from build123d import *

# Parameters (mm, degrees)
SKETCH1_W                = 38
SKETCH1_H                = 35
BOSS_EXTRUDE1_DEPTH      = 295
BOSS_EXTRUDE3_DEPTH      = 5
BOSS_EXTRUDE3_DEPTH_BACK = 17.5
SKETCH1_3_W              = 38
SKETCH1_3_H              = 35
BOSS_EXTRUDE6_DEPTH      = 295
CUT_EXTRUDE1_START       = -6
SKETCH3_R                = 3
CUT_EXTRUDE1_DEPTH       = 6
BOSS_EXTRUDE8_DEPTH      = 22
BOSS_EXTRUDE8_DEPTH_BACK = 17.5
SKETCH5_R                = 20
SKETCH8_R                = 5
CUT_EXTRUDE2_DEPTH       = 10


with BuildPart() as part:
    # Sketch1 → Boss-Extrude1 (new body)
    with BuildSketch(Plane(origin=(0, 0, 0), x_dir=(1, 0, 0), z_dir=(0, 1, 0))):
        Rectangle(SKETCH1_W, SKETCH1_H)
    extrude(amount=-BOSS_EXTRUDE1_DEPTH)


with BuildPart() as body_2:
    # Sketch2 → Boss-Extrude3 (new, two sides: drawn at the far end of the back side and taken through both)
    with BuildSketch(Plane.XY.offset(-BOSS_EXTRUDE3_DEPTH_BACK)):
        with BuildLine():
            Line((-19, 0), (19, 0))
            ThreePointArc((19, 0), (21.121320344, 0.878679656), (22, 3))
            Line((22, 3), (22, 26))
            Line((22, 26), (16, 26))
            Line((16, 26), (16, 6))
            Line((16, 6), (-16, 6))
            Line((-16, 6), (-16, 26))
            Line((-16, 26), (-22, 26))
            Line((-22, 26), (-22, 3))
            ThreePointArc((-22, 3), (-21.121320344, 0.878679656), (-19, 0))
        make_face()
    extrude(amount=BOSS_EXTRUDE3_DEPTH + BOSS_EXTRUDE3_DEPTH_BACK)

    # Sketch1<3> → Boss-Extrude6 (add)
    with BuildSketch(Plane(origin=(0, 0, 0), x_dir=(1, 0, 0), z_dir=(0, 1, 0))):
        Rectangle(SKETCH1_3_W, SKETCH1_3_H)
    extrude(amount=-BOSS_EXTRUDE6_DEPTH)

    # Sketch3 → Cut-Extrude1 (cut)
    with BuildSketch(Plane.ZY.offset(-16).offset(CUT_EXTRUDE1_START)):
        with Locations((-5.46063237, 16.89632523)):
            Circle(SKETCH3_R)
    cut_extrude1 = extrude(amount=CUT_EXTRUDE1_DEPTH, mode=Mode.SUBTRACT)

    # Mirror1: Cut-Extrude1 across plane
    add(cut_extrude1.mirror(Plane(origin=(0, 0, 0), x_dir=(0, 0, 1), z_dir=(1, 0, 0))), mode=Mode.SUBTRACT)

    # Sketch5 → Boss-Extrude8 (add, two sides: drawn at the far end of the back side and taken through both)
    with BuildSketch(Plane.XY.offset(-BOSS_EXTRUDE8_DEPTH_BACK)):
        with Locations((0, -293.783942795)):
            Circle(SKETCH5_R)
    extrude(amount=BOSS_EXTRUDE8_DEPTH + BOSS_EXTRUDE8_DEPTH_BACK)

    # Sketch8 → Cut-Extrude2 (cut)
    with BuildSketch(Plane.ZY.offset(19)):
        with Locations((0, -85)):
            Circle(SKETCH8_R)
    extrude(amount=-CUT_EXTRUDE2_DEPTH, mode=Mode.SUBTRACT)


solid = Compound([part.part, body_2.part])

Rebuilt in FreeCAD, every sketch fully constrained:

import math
import FreeCAD as App
import Part
import Sketcher

V = App.Vector
Q = App.Units.Quantity

doc = App.newDocument("Part")
body = doc.addObject("PartDesign::Body", "Body")

sketch1 = body.newObject("Sketcher::SketchObject", "Sketch")
sketch1.AttachmentSupport = (doc.getObject("XZ_Plane"), [""])
sketch1.MapMode = "FlatFace"
sketch1.addGeometry([
    Part.LineSegment(V(-19, -17.5, 0), V(-19, 17.5, 0)),
    Part.LineSegment(V(-19, 17.5, 0), V(19, 17.5, 0)),
    Part.LineSegment(V(19, 17.5, 0), V(19, -17.5, 0)),
    Part.LineSegment(V(19, -17.5, 0), V(-19, -17.5, 0)),
], False)
sketch1.addConstraint([
    Sketcher.Constraint("Coincident", 0, 2, 1, 1),
    Sketcher.Constraint("Coincident", 1, 2, 2, 1),
    Sketcher.Constraint("Coincident", 2, 2, 3, 1),
    Sketcher.Constraint("Coincident", 3, 2, 0, 1),
    Sketcher.Constraint("Vertical", 0),
    Sketcher.Constraint("Horizontal", 1),
    Sketcher.Constraint("Vertical", 2),
    Sketcher.Constraint("Horizontal", 3),
    Sketcher.Constraint("Symmetric", 0, 2, 2, 2, -1, 1),
    Sketcher.Constraint("DistanceX", 1, 1, 1, 2, Q("38 mm")),
    Sketcher.Constraint("DistanceY", 0, 1, 0, 2, Q("35 mm")),
])
pad1 = body.newObject("PartDesign::Pad", "Pad")
pad1.Profile = sketch1
pad1.Length = 295
body2 = doc.addObject("PartDesign::Body", "Body001")

sketch2 = body2.newObject("Sketcher::SketchObject", "Sketch001")
sketch2.AttachmentSupport = (doc.getObject("XY_Plane001"), [""])
sketch2.MapMode = "FlatFace"
sketch2.addGeometry([
    Part.LineSegment(V(-19, 0, 0), V(19, 0, 0)),
    Part.ArcOfCircle(Part.Circle(V(19, 3, 0), V(0, 0, 1), 3), math.radians(-90), math.radians(0)),
    Part.LineSegment(V(22, 3, 0), V(22, 26, 0)),
    Part.LineSegment(V(22, 26, 0), V(16, 26, 0)),
    Part.LineSegment(V(16, 26, 0), V(16, 6, 0)),
    Part.LineSegment(V(16, 6, 0), V(-16, 6, 0)),
    Part.LineSegment(V(-16, 6, 0), V(-16, 26, 0)),
    Part.LineSegment(V(-16, 26, 0), V(-22, 26, 0)),
    Part.LineSegment(V(-22, 26, 0), V(-22, 3, 0)),
    Part.ArcOfCircle(Part.Circle(V(-19, 3, 0), V(0, 0, 1), 3), math.radians(180), math.radians(270)),
], False)
sketch2.addConstraint([
    Sketcher.Constraint("Tangent", 0, 2, 1, 1),
    Sketcher.Constraint("Tangent", 1, 2, 2, 1),
    Sketcher.Constraint("Coincident", 2, 2, 3, 1),
    Sketcher.Constraint("Coincident", 3, 2, 4, 1),
    Sketcher.Constraint("Coincident", 4, 2, 5, 1),
    Sketcher.Constraint("Coincident", 5, 2, 6, 1),
    Sketcher.Constraint("Coincident", 6, 2, 7, 1),
    Sketcher.Constraint("Coincident", 7, 2, 8, 1),
    Sketcher.Constraint("Tangent", 8, 2, 9, 1),
    Sketcher.Constraint("Tangent", 9, 2, 0, 1),
    Sketcher.Constraint("Horizontal", 0),
    Sketcher.Constraint("Vertical", 2),
    Sketcher.Constraint("Horizontal", 3),
    Sketcher.Constraint("Vertical", 4),
    Sketcher.Constraint("Horizontal", 5),
    Sketcher.Constraint("Vertical", 6),
    Sketcher.Constraint("Horizontal", 7),
    Sketcher.Constraint("Vertical", 8),
    Sketcher.Constraint("Equal", 1, 9),
    Sketcher.Constraint("Symmetric", 0, 2, 9, 2, -1, 1),
    Sketcher.Constraint("Symmetric", 3, 2, 6, 2, -2),
    Sketcher.Constraint("Radius", 1, Q("3 mm")),
    Sketcher.Constraint("DistanceX", 0, 1, 0, 2, Q("38 mm")),
    Sketcher.Constraint("DistanceX", 3, 2, 3, 1, Q("6 mm")),
    Sketcher.Constraint("DistanceY", 2, 1, 2, 2, Q("23 mm")),
    Sketcher.Constraint("DistanceY", 4, 2, 4, 1, Q("20 mm")),
])
pad2 = body2.newObject("PartDesign::Pad", "Pad001")
pad2.Profile = sketch2
pad2.Type = "TwoLengths"
pad2.Length = 5
pad2.Length2 = 17.5

sketch3 = body2.newObject("Sketcher::SketchObject", "Sketch002")
sketch3.AttachmentSupport = (doc.getObject("XZ_Plane001"), [""])
sketch3.MapMode = "FlatFace"
sketch3.addGeometry([
    Part.LineSegment(V(-19, -17.5, 0), V(-19, 17.5, 0)),
    Part.LineSegment(V(-19, 17.5, 0), V(19, 17.5, 0)),
    Part.LineSegment(V(19, 17.5, 0), V(19, -17.5, 0)),
    Part.LineSegment(V(19, -17.5, 0), V(-19, -17.5, 0)),
], False)
sketch3.addConstraint([
    Sketcher.Constraint("Coincident", 0, 2, 1, 1),
    Sketcher.Constraint("Coincident", 1, 2, 2, 1),
    Sketcher.Constraint("Coincident", 2, 2, 3, 1),
    Sketcher.Constraint("Coincident", 3, 2, 0, 1),
    Sketcher.Constraint("Vertical", 0),
    Sketcher.Constraint("Horizontal", 1),
    Sketcher.Constraint("Vertical", 2),
    Sketcher.Constraint("Horizontal", 3),
    Sketcher.Constraint("Symmetric", 0, 2, 2, 2, -1, 1),
    Sketcher.Constraint("DistanceX", 1, 1, 1, 2, Q("38 mm")),
    Sketcher.Constraint("DistanceY", 0, 1, 0, 2, Q("35 mm")),
])
pad3 = body2.newObject("PartDesign::Pad", "Pad002")
pad3.Profile = sketch3
pad3.Length = 295

sketch4 = body2.newObject("Sketcher::SketchObject", "Sketch003")
sketch4.AttachmentSupport = (doc.getObject("YZ_Plane001"), [""])
sketch4.MapMode = "FlatFace"
sketch4.AttachmentOffset = App.Placement(V(0, 0, 22), App.Rotation())
sketch4.addGeometry(Part.Circle(V(16.896325, -5.460632, 0), V(0, 0, 1), 3), False)
sketch4.addConstraint([
    Sketcher.Constraint("Diameter", 0, Q("6 mm")),
    Sketcher.Constraint("DistanceX", -1, 1, 0, 3, Q("16.896325 mm")),
    Sketcher.Constraint("DistanceY", 0, 3, -1, 1, Q("5.460632 mm")),
])
pocket1 = body2.newObject("PartDesign::Pocket", "Pocket")
pocket1.Profile = sketch4
pocket1.Length = 6
doc.recompute()

mirrored = body2.newObject("PartDesign::Mirrored", "Mirrored")
mirrored.Originals = [pocket1]
mirrored.MirrorPlane = (doc.getObject("YZ_Plane001"), [""])
body2.Tip = mirrored

sketch5 = body2.newObject("Sketcher::SketchObject", "Sketch004")
sketch5.AttachmentSupport = (doc.getObject("XY_Plane001"), [""])
sketch5.MapMode = "FlatFace"
sketch5.addGeometry(Part.Circle(V(0, -293.783943, 0), V(0, 0, 1), 20), False)
sketch5.addConstraint([
    Sketcher.Constraint("PointOnObject", 0, 3, -2),
    Sketcher.Constraint("Diameter", 0, Q("40 mm")),
    Sketcher.Constraint("DistanceY", 0, 3, -1, 1, Q("293.783943 mm")),
])
pad4 = body2.newObject("PartDesign::Pad", "Pad003")
pad4.Profile = sketch5
pad4.Type = "TwoLengths"
pad4.Length = 22
pad4.Length2 = 17.5

sketch6 = body2.newObject("Sketcher::SketchObject", "Sketch005")
sketch6.AttachmentSupport = (doc.getObject("YZ_Plane001"), [""])
sketch6.MapMode = "FlatFace"
sketch6.AttachmentOffset = App.Placement(V(0, 0, -19), App.Rotation())
sketch6.addGeometry(Part.Circle(V(-85, 0, 0), V(0, 0, 1), 5), False)
sketch6.addConstraint([
    Sketcher.Constraint("PointOnObject", 0, 3, -1),
    Sketcher.Constraint("Diameter", 0, Q("10 mm")),
    Sketcher.Constraint("DistanceX", 0, 3, -1, 1, Q("85 mm")),
])
pocket2 = body2.newObject("PartDesign::Pocket", "Pocket001")
pocket2.Profile = sketch6
pocket2.Length = 10
pocket2.Reversed = True

doc.recompute()
